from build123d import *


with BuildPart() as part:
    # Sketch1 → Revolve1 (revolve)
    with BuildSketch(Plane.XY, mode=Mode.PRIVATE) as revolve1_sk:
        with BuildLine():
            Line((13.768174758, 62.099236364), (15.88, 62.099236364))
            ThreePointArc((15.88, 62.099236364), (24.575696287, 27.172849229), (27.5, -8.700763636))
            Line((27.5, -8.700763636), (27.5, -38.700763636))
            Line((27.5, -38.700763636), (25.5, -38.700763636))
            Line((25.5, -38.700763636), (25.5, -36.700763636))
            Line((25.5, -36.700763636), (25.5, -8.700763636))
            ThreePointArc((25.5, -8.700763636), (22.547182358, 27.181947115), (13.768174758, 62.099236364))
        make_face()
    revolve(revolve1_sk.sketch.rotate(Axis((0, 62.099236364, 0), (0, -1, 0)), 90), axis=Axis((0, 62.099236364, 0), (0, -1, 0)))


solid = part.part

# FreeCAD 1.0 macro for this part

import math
import FreeCAD as App
import Part
import Sketcher
from FreeCAD import Vector
Q = App.Units.Quantity

doc = App.newDocument("Part")
body = doc.addObject("PartDesign::Body", "Body")

sketch1 = body.newObject("Sketcher::SketchObject", "Sketch")
sketch1.AttachmentSupport = (doc.getObject("XY_Plane"), [""])
sketch1.MapMode = "FlatFace"
sketch1.addGeometry(Part.LineSegment(Vector(15.88, 62.099236, 0), Vector(13.768175, 62.099236, 0)), False)
sketch1.addGeometry(Part.ArcOfCircle(Part.Circle(Vector(-194.000189, -8.700764, 0), Vector(0, 0, 1), 219.500189), math.radians(0), math.radians(18.817267)), False)
sketch1.addGeometry(Part.LineSegment(Vector(25.5, -8.700764, 0), Vector(25.5, -38.700764, 0)), False)
sketch1.addGeometry(Part.LineSegment(Vector(25.5, -38.700764, 0), Vector(27.5, -38.700764, 0)), False)
sketch1.addGeometry(Part.LineSegment(Vector(27.5, -38.700764, 0), Vector(27.5, -8.700764, 0)), False)
sketch1.addGeometry(Part.ArcOfCircle(Part.Circle(Vector(-194.000189, -8.700764, 0), Vector(0, 0, 1), 221.500189), math.radians(0), math.radians(18.641068)), False)
sketch1.addConstraint(Sketcher.Constraint("Coincident", 0, 2, 1, 2))
sketch1.addConstraint(Sketcher.Constraint("Tangent", 1, 1, 2, 1))
sketch1.addConstraint(Sketcher.Constraint("Coincident", 2, 2, 3, 1))
sketch1.addConstraint(Sketcher.Constraint("Coincident", 3, 2, 4, 1))
sketch1.addConstraint(Sketcher.Constraint("Tangent", 4, 2, 5, 1))
sketch1.addConstraint(Sketcher.Constraint("Coincident", 5, 2, 0, 1))
sketch1.addConstraint(Sketcher.Constraint("Horizontal", 0))
sketch1.addConstraint(Sketcher.Constraint("Vertical", 2))
sketch1.addConstraint(Sketcher.Constraint("Horizontal", 3))
sketch1.addConstraint(Sketcher.Constraint("Vertical", 4))
sketch1.addConstraint(Sketcher.Constraint("Coincident", 5, 3, 1, 3))
sketch1.addConstraint(Sketcher.Constraint("DistanceX", 3, 1, 3, 2, Q("2 mm")))
sketch1.addConstraint(Sketcher.Constraint("DistanceY", 2, 2, 2, 1, Q("30 mm")))
sketch1.addConstraint(Sketcher.Constraint("DistanceX", -1, 1, 1, 1, Q("25.5 mm")))
sketch1.addConstraint(Sketcher.Constraint("DistanceY", 5, 3, 0, 2, Q("70.8 mm")))
sketch1.addConstraint(Sketcher.Constraint("Radius", 1, Q("219.500189 mm")))
sketch1.addConstraint(Sketcher.Constraint("DistanceY", 1, 3, -1, 1, Q("8.700764 mm")))
revolution = body.newObject("PartDesign::Revolution", "Revolution")
revolution.Profile = sketch1
revolution.ReferenceAxis = (sketch1, ["V_Axis"])
revolution.Angle = 360

doc.recompute()
